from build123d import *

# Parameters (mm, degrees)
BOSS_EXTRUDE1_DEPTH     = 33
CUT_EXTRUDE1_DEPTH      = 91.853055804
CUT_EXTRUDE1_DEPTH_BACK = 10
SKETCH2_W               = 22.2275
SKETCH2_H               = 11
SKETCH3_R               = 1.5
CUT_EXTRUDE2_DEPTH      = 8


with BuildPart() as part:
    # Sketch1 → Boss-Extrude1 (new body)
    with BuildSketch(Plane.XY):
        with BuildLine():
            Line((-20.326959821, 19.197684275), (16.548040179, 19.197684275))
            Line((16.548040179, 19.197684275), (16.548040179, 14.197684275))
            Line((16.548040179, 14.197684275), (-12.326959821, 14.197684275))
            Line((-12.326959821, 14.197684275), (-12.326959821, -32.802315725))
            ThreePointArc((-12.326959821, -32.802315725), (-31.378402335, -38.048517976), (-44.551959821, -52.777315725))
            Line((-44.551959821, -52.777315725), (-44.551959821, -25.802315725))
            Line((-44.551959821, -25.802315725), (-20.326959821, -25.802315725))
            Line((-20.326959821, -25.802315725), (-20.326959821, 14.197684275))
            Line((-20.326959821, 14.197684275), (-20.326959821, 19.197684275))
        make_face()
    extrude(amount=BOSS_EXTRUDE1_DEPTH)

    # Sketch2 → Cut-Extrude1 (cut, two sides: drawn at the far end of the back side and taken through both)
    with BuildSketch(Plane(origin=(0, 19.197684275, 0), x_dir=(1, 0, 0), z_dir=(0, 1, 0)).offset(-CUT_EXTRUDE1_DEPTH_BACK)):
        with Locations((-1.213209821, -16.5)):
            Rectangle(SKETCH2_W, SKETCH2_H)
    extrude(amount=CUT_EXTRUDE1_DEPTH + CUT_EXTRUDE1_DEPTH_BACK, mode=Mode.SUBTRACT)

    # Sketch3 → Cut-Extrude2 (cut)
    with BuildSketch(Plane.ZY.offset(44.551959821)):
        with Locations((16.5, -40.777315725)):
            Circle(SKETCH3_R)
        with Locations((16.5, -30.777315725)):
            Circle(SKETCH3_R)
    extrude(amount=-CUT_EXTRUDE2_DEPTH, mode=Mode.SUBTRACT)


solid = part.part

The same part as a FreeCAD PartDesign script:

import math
import FreeCAD as App
import Part
import Sketcher

V = App.Vector
Q = App.Units.Quantity


def add_polygon(sketch, points):
    """Adds a closed chain of lines whose ends are joined by coincident constraints."""
    first, n = sketch.GeometryCount, len(points)
    for a, b in zip(points, points[1:] + points[:1]):
        sketch.addGeometry(Part.LineSegment(App.Vector(*a, 0), App.Vector(*b, 0)), False)
    for i in range(n):
        sketch.addConstraint(Sketcher.Constraint("Coincident", first + i, 2, first + (i + 1) % n, 1))

doc = App.newDocument("Part")
body = doc.addObject("PartDesign::Body", "Body")

# Sketch on XY plane
sketch1 = body.newObject("Sketcher::SketchObject", "Sketch")
sketch1.AttachmentSupport = (doc.getObject("XY_Plane"), [""])
sketch1.MapMode = "FlatFace"
sketch1.addGeometry([
    Part.LineSegment(V(17, 19, 0), V(-20, 19, 0)),  # 0
    Part.LineSegment(V(-20, 19, 0), V(-20, -26, 0)),  # 1
    Part.LineSegment(V(-20, -26, 0), V(-45, -26, 0)),  # 2
    Part.LineSegment(V(-45, -26, 0), V(-45, -53, 0)),  # 3
    Part.ArcOfCircle(Part.Circle(V(-13, -68, 0), V(0, 0, 1), 35), math.radians(89), math.radians(155)),  # 4
    Part.LineSegment(V(-12, -33, 0), V(-12, 14, 0)),  # 5
    Part.LineSegment(V(-12, 14, 0), V(17, 14, 0)),  # 6
    Part.LineSegment(V(17, 14, 0), V(17, 19, 0)),  # 7
], False)
sketch1.addConstraint([
    Sketcher.Constraint("Coincident", 0, 2, 1, 1),
    Sketcher.Constraint("Coincident", 1, 2, 2, 1),
    Sketcher.Constraint("Coincident", 2, 2, 3, 1),
    Sketcher.Constraint("Coincident", 3, 2, 4, 2),
    Sketcher.Constraint("Coincident", 4, 1, 5, 1),
    Sketcher.Constraint("Coincident", 5, 2, 6, 1),
    Sketcher.Constraint("Coincident", 6, 2, 7, 1),
    Sketcher.Constraint("Coincident", 7, 2, 0, 1),
    Sketcher.Constraint("Horizontal", 0),
    Sketcher.Constraint("Vertical", 1),
    Sketcher.Constraint("Horizontal", 2),
    Sketcher.Constraint("Vertical", 3),
    Sketcher.Constraint("Vertical", 5),
    Sketcher.Constraint("Horizontal", 6),
    Sketcher.Constraint("Vertical", 7),
    Sketcher.Constraint("Radius", 4, Q("35 mm")),
    Sketcher.Constraint("DistanceY", 1, 2, 1, 1, Q("45 mm")),
    Sketcher.Constraint("DistanceY", 5, 1, 5, 2, Q("47 mm")),
    Sketcher.Constraint("DistanceY", 7, 1, 7, 2, Q("5 mm")),
    Sketcher.Constraint("DistanceX", 1, 2, 4, 1, Q("8 mm")),
    Sketcher.Constraint("DistanceX", 2, 2, 6, 2, Q("61.1 mm")),
    Sketcher.Constraint("DistanceX", 0, 2, 0, 1, Q("36.875 mm")),
    Sketcher.Constraint("DistanceY", 3, 2, 3, 1, Q("26.975 mm")),
    Sketcher.Constraint("DistanceX", 0, 2, -1, 1, Q("20.32696 mm")),
    Sketcher.Constraint("DistanceY", 4, 3, -1, 1, Q("67.796972 mm")),
])
pad1 = body.newObject("PartDesign::Pad", "Pad")
pad1.Profile = sketch1
pad1.Length = 33

# Sketch on XZ plane
sketch2 = body.newObject("Sketcher::SketchObject", "Sketch001")
sketch2.AttachmentSupport = (doc.getObject("XZ_Plane"), [""])
sketch2.MapMode = "FlatFace"
sketch2.AttachmentOffset = App.Placement(V(0, 0, -19.197684), App.Rotation())
add_polygon(sketch2, [(-12, 11), (-12, 22), (10, 22), (10, 11)])  # lines 0-3
sketch2.addConstraint([
    Sketcher.Constraint("Vertical", 0),
    Sketcher.Constraint("Horizontal", 1),
    Sketcher.Constraint("Vertical", 2),
    Sketcher.Constraint("Horizontal", 3),
    Sketcher.Constraint("DistanceY", 0, 1, 0, 2, Q("11 mm")),
    Sketcher.Constraint("DistanceY", -1, 1, 0, 2, Q("22 mm")),
    Sketcher.Constraint("DistanceX", 1, 1, 1, 2, Q("22.2275 mm")),
    Sketcher.Constraint("DistanceX", 0, 2, -1, 1, Q("12.32696 mm")),
])
pocket1 = body.newObject("PartDesign::Pocket", "Pocket")
pocket1.Profile = sketch2
pocket1.Type = "ThroughAll"
pocket1.Midplane = True

# Sketch on YZ plane
sketch3 = body.newObject("Sketcher::SketchObject", "Sketch002")
sketch3.AttachmentSupport = (doc.getObject("YZ_Plane"), [""])
sketch3.MapMode = "FlatFace"
sketch3.AttachmentOffset = App.Placement(V(0, 0, -44.55196), App.Rotation())
sketch3.addGeometry([
    Part.Circle(V(-40.8, 16.5, 0), V(0, 0, 1), 1.5),
    Part.Circle(V(-30.8, 16.5, 0), V(0, 0, 1), 1.5),
], False)
sketch3.addConstraint([
    Sketcher.Constraint("Equal", 0, 1),
    Sketcher.Constraint("Horizontal", 0, 3, 1, 3),
    Sketcher.Constraint("Diameter", 0, Q("3 mm")),
    Sketcher.Constraint("DistanceX", 0, 3, 1, 3, Q("10 mm")),
    Sketcher.Constraint("DistanceY", -1, 1, 0, 3, Q("16.5 mm")),
    Sketcher.Constraint("DistanceX", 0, 3, -1, 1, Q("40.777316 mm")),
])
pocket2 = body.newObject("PartDesign::Pocket", "Pocket001")
pocket2.Profile = sketch3
pocket2.Length = 8
pocket2.Reversed = True

doc.recompute()
